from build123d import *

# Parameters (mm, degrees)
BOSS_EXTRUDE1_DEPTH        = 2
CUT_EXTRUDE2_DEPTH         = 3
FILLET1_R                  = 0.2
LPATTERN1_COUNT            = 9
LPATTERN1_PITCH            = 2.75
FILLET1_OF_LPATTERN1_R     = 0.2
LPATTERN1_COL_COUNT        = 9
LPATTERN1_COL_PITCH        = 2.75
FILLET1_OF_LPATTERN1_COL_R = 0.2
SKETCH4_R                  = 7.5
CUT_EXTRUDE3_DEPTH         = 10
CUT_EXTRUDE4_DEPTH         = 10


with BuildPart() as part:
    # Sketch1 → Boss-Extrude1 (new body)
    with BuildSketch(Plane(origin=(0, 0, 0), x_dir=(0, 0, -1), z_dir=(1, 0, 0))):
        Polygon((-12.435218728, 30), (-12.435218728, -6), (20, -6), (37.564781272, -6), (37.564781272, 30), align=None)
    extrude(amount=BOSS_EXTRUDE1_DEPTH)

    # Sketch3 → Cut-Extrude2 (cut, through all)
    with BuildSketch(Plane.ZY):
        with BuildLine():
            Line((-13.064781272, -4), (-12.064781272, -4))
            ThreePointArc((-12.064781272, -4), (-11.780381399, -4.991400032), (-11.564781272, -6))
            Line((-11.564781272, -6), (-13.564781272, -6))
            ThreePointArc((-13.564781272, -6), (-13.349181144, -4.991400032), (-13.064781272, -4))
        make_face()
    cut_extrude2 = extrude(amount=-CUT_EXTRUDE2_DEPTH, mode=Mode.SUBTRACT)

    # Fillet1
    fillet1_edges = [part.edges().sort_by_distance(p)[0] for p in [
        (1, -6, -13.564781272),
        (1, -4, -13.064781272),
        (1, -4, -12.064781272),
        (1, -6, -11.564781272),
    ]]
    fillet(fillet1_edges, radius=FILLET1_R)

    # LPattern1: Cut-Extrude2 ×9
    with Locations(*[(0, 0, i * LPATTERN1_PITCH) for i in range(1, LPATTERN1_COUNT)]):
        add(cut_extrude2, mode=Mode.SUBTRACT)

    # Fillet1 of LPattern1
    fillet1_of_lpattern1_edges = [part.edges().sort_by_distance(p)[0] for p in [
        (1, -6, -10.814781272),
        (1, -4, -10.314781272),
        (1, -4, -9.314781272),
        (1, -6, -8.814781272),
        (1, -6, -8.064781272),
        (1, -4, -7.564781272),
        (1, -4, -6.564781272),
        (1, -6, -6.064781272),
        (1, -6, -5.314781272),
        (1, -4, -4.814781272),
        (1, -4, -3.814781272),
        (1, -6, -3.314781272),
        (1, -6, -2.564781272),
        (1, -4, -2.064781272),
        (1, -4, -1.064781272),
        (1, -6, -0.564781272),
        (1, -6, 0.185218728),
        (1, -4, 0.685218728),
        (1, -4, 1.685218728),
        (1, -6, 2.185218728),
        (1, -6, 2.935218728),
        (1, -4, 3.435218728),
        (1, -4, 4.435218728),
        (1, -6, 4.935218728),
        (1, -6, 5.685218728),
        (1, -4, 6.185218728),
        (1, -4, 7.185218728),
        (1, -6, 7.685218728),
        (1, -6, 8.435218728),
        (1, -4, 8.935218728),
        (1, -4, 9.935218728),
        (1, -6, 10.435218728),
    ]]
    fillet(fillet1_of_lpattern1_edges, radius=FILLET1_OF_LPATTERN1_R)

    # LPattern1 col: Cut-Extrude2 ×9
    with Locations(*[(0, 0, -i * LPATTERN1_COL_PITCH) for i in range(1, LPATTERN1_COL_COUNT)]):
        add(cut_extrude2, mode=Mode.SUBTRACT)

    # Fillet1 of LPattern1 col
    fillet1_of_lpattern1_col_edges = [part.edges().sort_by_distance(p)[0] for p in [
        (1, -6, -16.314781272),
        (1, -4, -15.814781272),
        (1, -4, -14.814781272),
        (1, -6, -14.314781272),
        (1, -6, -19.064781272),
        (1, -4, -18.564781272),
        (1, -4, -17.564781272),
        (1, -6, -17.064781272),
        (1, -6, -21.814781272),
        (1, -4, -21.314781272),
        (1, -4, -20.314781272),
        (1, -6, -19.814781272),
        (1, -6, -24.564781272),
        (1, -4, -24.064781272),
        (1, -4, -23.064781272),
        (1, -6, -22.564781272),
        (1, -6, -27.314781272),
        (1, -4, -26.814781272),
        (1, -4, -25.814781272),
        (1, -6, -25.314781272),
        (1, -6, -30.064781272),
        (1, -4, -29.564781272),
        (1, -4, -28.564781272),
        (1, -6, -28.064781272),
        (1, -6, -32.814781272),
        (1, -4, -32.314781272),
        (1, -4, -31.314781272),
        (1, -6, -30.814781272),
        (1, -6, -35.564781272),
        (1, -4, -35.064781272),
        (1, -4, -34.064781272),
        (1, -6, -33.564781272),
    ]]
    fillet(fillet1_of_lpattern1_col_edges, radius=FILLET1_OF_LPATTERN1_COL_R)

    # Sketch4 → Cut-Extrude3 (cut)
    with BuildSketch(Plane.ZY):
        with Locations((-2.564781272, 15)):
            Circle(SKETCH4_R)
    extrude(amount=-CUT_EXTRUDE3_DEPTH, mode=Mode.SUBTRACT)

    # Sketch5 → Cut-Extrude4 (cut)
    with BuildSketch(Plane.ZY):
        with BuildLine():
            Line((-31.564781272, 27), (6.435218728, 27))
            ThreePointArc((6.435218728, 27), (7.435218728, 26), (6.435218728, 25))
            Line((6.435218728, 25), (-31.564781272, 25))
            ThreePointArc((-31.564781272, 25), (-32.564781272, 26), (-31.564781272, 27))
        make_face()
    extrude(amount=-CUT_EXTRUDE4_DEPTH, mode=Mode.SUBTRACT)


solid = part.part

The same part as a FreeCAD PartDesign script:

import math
import FreeCAD as App
import Part
import Sketcher
Q = App.Units.Quantity


def edges_at(feature, points):
    """Names of the edges that pass closest to the given points."""
    edges = feature.Shape.Edges
    near = lambda p: min(range(len(edges)), key=lambda i: edges[i].distToShape(Part.Vertex(*p))[0])
    return sorted({f"Edge{near(p) + 1}" for p in points})


def add_polygon(sketch, points):
    """Adds a closed chain of lines whose ends are joined by coincident constraints."""
    first, n = sketch.GeometryCount, len(points)
    for a, b in zip(points, points[1:] + points[:1]):
        sketch.addGeometry(Part.LineSegment(App.Vector(*a, 0), App.Vector(*b, 0)), False)
    for i in range(n):
        sketch.addConstraint(Sketcher.Constraint("Coincident", first + i, 2, first + (i + 1) % n, 1))

doc = App.newDocument("Part")
body = doc.addObject("PartDesign::Body", "Body")

sketch1 = body.newObject("Sketcher::SketchObject", "Sketch")
sketch1.AttachmentSupport = (doc.getObject("YZ_Plane"), [""])
sketch1.MapMode = "FlatFace"
add_polygon(sketch1, [(30, 12.435219), (-6, 12.435219), (-6, -37.564781), (30, -37.564781)])
sketch1.addConstraint([
    Sketcher.Constraint("Horizontal", 0),
    Sketcher.Constraint("Vertical", 1),
    Sketcher.Constraint("Horizontal", 2),
    Sketcher.Constraint("Vertical", 3),
    Sketcher.Constraint("DistanceX", 0, 2, 0, 1, Q("36 mm")),
    Sketcher.Constraint("DistanceY", 1, 2, 1, 1, Q("50 mm")),
    Sketcher.Constraint("DistanceX", 0, 2, -1, 1, Q("6 mm")),
    Sketcher.Constraint("DistanceY", -1, 1, 0, 2, Q("12.435219 mm")),
])
pad1 = body.newObject("PartDesign::Pad", "Pad")
pad1.Profile = sketch1
pad1.Length = 2

sketch2 = body.newObject("Sketcher::SketchObject", "Sketch001")
sketch2.AttachmentSupport = (doc.getObject("YZ_Plane"), [""])
sketch2.MapMode = "FlatFace"
sketch2.addGeometry([
    Part.LineSegment(App.Vector(-4, -12.064781, 0), App.Vector(-4, -13.064781, 0)),
    Part.ArcOfCircle(Part.Circle(App.Vector(-8.629434, 1.202957, 0), App.Vector(0, 0, 1), 15), math.radians(-79.904138), math.radians(-72.023375)),
    Part.LineSegment(App.Vector(-6, -13.564781, 0), App.Vector(-6, -11.564781, 0)),
    Part.ArcOfCircle(Part.Circle(App.Vector(-8.629434, -26.332519, 0), App.Vector(0, 0, 1), 15), math.radians(72.023375), math.radians(79.904138)),
], False)
sketch2.addConstraint([
    Sketcher.Constraint("Coincident", 0, 2, 1, 2),
    Sketcher.Constraint("Coincident", 1, 1, 2, 1),
    Sketcher.Constraint("Coincident", 2, 2, 3, 2),
    Sketcher.Constraint("Coincident", 3, 1, 0, 1),
    Sketcher.Constraint("Vertical", 0),
    Sketcher.Constraint("Vertical", 2),
    Sketcher.Constraint("Equal", 1, 3),
    Sketcher.Constraint("Vertical", 1, 3, 3, 3),
    Sketcher.Constraint("Radius", 1, Q("15 mm")),
    Sketcher.Constraint("DistanceY", 0, 2, 0, 1, Q("1 mm")),
    Sketcher.Constraint("DistanceY", 2, 1, 2, 2, Q("2 mm")),
    Sketcher.Constraint("DistanceX", 0, 2, -1, 1, Q("4 mm")),
    Sketcher.Constraint("DistanceX", 1, 1, -1, 1, Q("6 mm")),
    Sketcher.Constraint("DistanceY", 3, 3, -1, 1, Q("26.332519 mm")),
])
pocket1 = body.newObject("PartDesign::Pocket", "Pocket")
pocket1.Profile = sketch2
pocket1.Type = "ThroughAll"
pocket1.Reversed = True
doc.recompute()

fillet = body.newObject("PartDesign::Fillet", "Fillet")
fillet.Base = (pocket1, edges_at(pocket1, [
    (1, -6, -13.565),
    (1, -4, -13.065),
    (1, -4, -12.065),
    (1, -6, -11.565),
]))
fillet.Radius = 0.2
doc.recompute()

linearpattern = body.newObject("PartDesign::LinearPattern", "LinearPattern")
linearpattern.Originals = [pocket1]
linearpattern.Direction = (doc.getObject("Z_Axis"), [""])
linearpattern.Mode = "offset"
linearpattern.Offset = 2.75
linearpattern.Occurrences = 9
body.Tip = linearpattern
doc.recompute()

fillet2 = body.newObject("PartDesign::Fillet", "Fillet001")
fillet2.Base = (linearpattern, edges_at(linearpattern, [
    (1, -6, -10.815),
    (1, -4, -10.315),
    (1, -4, -9.315),
    (1, -6, -8.815),
    (1, -6, -8.065),
    (1, -4, -7.565),
    (1, -4, -6.565),
    (1, -6, -6.065),
    (1, -6, -5.315),
    (1, -4, -4.815),
    (1, -4, -3.815),
    (1, -6, -3.315),
    (1, -6, -2.565),
    (1, -4, -2.065),
    (1, -4, -1.065),
    (1, -6, -0.565),
    (1, -6, 0.185),
    (1, -4, 0.685),
    (1, -4, 1.685),
    (1, -6, 2.185),
    (1, -6, 2.935),
    (1, -4, 3.435),
    (1, -4, 4.435),
    (1, -6, 4.935),
    (1, -6, 5.685),
    (1, -4, 6.185),
    (1, -4, 7.185),
    (1, -6, 7.685),
    (1, -6, 8.435),
    (1, -4, 8.935),
    (1, -4, 9.935),
    (1, -6, 10.435),
]))
fillet2.Radius = 0.2
doc.recompute()

linearpattern2 = body.newObject("PartDesign::LinearPattern", "LinearPattern001")
linearpattern2.Originals = [pocket1]
linearpattern2.Direction = (doc.getObject("Z_Axis"), [""])
linearpattern2.Mode = "offset"
linearpattern2.Offset = 2.75
linearpattern2.Occurrences = 9
linearpattern2.Reversed = True
body.Tip = linearpattern2
doc.recompute()

fillet3 = body.newObject("PartDesign::Fillet", "Fillet002")
fillet3.Base = (linearpattern2, edges_at(linearpattern2, [
    (1, -6, -16.315),
    (1, -4, -15.815),
    (1, -4, -14.815),
    (1, -6, -14.315),
    (1, -6, -19.065),
    (1, -4, -18.565),
    (1, -4, -17.565),
    (1, -6, -17.065),
    (1, -6, -21.815),
    (1, -4, -21.315),
    (1, -4, -20.315),
    (1, -6, -19.815),
    (1, -6, -24.565),
    (1, -4, -24.065),
    (1, -4, -23.065),
    (1, -6, -22.565),
    (1, -6, -27.315),
    (1, -4, -26.815),
    (1, -4, -25.815),
    (1, -6, -25.315),
    (1, -6, -30.065),
    (1, -4, -29.565),
    (1, -4, -28.565),
    (1, -6, -28.065),
    (1, -6, -32.815),
    (1, -4, -32.315),
    (1, -4, -31.315),
    (1, -6, -30.815),
    (1, -6, -35.565),
    (1, -4, -35.065),
    (1, -4, -34.065),
    (1, -6, -33.565),
]))
fillet3.Radius = 0.2

sketch3 = body.newObject("Sketcher::SketchObject", "Sketch002")
sketch3.AttachmentSupport = (doc.getObject("YZ_Plane"), [""])
sketch3.MapMode = "FlatFace"
sketch3.addGeometry(Part.Circle(App.Vector(15, -2.564781, 0), App.Vector(0, 0, 1), 7.5), False)
sketch3.addConstraint([
    Sketcher.Constraint("Diameter", 0, Q("15 mm")),
    Sketcher.Constraint("DistanceX", -1, 1, 0, 3, Q("15 mm")),
    Sketcher.Constraint("DistanceY", 0, 3, -1, 1, Q("2.564781 mm")),
])
pocket2 = body.newObject("PartDesign::Pocket", "Pocket001")
pocket2.Profile = sketch3
pocket2.Length = 10
pocket2.Reversed = True

sketch4 = body.newObject("Sketcher::SketchObject", "Sketch003")
sketch4.AttachmentSupport = (doc.getObject("YZ_Plane"), [""])
sketch4.MapMode = "FlatFace"
sketch4.addGeometry([
    Part.LineSegment(App.Vector(27, 6.435219, 0), App.Vector(27, -31.564781, 0)),
    Part.ArcOfCircle(Part.Circle(App.Vector(26, -31.564781, 0), App.Vector(0, 0, 1), 1), math.radians(180), math.radians(360)),
    Part.LineSegment(App.Vector(25, -31.564781, 0), App.Vector(25, 6.435219, 0)),
    Part.ArcOfCircle(Part.Circle(App.Vector(26, 6.435219, 0), App.Vector(0, 0, 1), 1), math.radians(0), math.radians(180)),
], False)
sketch4.addConstraint([
    Sketcher.Constraint("Tangent", 0, 2, 1, 2),
    Sketcher.Constraint("Tangent", 1, 1, 2, 1),
    Sketcher.Constraint("Tangent", 2, 2, 3, 2),
    Sketcher.Constraint("Tangent", 3, 1, 0, 1),
    Sketcher.Constraint("Vertical", 0),
    Sketcher.Constraint("Vertical", 2),
    Sketcher.Constraint("Radius", 1, Q("1 mm")),
    Sketcher.Constraint("DistanceY", 0, 2, 0, 1, Q("38 mm")),
    Sketcher.Constraint("DistanceX", -1, 1, 1, 3, Q("26 mm")),
    Sketcher.Constraint("DistanceY", 1, 3, -1, 1, Q("31.564781 mm")),
])
pocket3 = body.newObject("PartDesign::Pocket", "Pocket002")
pocket3.Profile = sketch4
pocket3.Length = 10
pocket3.Reversed = True

doc.recompute()
